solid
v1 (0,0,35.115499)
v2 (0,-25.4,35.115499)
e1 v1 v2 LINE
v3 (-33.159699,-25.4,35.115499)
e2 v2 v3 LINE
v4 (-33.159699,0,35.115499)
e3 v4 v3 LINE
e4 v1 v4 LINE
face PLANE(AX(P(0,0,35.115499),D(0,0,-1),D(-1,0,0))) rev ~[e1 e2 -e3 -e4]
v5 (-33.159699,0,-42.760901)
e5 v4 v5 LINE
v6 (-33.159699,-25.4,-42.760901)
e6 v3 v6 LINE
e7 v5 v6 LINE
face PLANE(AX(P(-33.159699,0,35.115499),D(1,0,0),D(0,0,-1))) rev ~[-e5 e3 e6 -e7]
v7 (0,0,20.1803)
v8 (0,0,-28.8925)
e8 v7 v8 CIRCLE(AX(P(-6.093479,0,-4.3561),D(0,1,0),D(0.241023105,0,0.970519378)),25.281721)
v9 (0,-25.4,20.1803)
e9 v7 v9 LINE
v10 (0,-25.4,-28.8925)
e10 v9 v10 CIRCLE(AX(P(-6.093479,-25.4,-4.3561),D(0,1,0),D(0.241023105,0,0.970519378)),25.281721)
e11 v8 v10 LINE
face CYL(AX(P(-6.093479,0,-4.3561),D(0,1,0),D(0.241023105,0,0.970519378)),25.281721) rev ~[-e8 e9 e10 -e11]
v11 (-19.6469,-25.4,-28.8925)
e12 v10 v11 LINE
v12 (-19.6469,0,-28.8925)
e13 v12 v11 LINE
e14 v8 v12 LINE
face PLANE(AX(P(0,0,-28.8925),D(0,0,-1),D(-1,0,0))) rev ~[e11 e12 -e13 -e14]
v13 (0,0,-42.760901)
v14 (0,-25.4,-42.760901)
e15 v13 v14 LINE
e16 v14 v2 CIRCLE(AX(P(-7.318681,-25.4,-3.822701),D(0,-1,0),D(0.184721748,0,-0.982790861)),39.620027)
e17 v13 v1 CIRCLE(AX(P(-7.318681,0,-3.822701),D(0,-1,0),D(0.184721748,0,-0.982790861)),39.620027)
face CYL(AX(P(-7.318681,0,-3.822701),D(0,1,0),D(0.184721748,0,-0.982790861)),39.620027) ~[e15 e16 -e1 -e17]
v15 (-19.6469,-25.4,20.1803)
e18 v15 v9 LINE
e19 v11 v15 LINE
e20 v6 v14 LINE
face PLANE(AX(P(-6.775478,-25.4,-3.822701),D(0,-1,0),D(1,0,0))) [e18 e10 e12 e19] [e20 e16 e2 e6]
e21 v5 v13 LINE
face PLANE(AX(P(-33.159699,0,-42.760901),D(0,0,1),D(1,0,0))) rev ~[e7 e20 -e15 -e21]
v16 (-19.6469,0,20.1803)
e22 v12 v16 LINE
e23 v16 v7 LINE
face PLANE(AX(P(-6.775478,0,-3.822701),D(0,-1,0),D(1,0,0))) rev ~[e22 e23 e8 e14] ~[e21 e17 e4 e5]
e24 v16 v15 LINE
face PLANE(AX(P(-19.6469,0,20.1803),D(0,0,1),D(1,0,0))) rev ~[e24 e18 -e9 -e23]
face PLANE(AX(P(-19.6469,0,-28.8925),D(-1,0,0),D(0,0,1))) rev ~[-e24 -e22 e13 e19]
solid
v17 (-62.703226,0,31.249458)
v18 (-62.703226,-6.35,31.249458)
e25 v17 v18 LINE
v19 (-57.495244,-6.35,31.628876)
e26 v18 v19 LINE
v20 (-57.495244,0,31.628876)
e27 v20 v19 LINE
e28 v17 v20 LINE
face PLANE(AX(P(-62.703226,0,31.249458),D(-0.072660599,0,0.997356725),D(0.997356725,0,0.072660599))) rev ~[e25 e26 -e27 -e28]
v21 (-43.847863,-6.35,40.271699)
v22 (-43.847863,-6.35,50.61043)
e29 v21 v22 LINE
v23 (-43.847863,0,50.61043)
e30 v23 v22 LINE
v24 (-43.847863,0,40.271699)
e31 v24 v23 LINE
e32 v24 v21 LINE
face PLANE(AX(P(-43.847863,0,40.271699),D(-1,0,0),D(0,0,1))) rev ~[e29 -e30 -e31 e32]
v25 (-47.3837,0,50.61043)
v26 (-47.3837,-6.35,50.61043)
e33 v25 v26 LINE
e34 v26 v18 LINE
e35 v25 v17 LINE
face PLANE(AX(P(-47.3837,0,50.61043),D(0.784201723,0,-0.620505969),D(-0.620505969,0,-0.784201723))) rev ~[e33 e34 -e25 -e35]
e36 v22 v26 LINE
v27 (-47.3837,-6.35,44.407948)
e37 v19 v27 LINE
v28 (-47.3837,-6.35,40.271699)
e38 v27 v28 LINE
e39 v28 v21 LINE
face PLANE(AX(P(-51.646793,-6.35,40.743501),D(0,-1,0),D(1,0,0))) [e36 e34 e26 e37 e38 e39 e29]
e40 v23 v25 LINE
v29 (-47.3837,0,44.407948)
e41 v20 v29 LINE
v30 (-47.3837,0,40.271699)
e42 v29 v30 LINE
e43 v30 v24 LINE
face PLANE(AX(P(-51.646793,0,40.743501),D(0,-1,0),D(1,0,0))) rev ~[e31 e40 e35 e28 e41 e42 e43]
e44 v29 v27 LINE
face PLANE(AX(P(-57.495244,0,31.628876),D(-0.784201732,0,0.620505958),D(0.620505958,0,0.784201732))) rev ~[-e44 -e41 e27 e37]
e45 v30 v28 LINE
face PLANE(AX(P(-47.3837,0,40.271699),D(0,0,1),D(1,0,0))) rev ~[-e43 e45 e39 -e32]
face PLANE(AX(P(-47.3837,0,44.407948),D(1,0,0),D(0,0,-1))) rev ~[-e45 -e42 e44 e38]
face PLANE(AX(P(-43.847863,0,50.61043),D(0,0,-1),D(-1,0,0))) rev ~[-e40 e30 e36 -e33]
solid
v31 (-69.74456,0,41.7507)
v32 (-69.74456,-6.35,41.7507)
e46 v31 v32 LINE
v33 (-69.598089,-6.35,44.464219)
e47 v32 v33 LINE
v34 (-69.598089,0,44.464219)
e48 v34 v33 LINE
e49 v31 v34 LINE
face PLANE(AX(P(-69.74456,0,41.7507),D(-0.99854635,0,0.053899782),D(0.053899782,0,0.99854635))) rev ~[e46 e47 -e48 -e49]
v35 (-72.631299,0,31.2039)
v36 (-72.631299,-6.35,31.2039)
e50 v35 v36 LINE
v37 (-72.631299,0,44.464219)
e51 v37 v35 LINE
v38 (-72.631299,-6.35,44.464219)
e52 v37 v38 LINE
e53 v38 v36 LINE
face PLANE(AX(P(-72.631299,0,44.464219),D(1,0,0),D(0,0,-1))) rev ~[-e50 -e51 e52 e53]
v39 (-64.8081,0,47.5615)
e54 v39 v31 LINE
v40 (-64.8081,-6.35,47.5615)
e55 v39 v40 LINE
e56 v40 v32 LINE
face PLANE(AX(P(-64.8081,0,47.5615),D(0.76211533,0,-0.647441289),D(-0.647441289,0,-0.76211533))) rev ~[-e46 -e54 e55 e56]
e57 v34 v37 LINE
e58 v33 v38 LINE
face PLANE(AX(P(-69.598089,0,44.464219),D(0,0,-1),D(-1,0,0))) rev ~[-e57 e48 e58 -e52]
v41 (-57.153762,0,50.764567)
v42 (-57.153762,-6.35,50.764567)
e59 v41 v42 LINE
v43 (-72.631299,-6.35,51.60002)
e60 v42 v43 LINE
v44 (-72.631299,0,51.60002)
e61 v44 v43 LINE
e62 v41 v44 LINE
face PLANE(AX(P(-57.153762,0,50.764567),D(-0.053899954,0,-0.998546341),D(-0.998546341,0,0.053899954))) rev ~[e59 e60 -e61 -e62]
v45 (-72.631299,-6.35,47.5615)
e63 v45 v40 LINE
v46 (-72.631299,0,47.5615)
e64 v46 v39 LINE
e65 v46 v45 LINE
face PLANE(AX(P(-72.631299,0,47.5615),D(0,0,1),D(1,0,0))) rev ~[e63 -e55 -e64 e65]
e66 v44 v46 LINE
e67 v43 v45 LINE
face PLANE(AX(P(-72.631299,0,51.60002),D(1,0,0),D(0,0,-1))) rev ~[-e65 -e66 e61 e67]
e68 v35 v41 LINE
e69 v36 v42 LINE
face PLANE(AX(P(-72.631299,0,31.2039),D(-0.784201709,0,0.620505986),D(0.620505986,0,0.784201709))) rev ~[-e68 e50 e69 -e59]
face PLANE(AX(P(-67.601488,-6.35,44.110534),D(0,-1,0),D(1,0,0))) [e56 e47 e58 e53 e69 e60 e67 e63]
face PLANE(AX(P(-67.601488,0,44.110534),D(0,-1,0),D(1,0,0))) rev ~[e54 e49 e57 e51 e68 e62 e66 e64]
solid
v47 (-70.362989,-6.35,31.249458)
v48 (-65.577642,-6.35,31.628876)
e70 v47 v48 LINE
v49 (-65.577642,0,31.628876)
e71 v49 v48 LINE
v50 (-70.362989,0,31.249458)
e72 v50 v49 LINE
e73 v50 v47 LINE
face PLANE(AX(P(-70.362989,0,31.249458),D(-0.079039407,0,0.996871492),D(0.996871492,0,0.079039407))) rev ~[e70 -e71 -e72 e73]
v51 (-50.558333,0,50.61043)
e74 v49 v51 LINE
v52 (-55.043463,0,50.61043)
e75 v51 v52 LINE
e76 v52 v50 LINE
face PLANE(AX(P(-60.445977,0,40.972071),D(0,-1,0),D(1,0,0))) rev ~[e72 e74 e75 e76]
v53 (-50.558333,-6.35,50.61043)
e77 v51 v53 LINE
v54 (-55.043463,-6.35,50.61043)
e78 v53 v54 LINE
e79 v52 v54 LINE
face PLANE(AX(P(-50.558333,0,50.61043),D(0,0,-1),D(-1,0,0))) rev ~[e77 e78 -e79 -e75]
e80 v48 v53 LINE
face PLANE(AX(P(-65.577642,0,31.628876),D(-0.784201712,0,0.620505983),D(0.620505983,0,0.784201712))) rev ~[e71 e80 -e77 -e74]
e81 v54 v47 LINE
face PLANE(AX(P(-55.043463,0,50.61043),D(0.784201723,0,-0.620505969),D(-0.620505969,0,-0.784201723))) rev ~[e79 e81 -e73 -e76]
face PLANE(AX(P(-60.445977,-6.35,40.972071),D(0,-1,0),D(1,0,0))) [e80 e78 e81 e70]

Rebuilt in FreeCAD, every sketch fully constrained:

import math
import FreeCAD as App
import Part
import Sketcher
Q = App.Units.Quantity


def add_polygon(sketch, points):
    """Adds a closed chain of lines whose ends are joined by coincident constraints."""
    first, n = sketch.GeometryCount, len(points)
    for a, b in zip(points, points[1:] + points[:1]):
        sketch.addGeometry(Part.LineSegment(App.Vector(*a, 0), App.Vector(*b, 0)), False)
    for i in range(n):
        sketch.addConstraint(Sketcher.Constraint("Coincident", first + i, 2, first + (i + 1) % n, 1))

doc = App.newDocument("Part")
params = doc.addObject("Spreadsheet::Sheet", "Params")
for row, (alias, value) in enumerate([
    ("sketch1_height", "3.066 in"),
    ("sketch1_height2", "1.932 in"),
    ("pad1_length", "1 in"),
    ("sketch2_width", "0.308 in"),
    ("pad2_length", "0.25 in"),
], start=1):
    params.set(f"A{row}", alias)
    params.set(f"B{row}", "=" + value)
    params.setAlias(f"B{row}", alias)

body = doc.addObject("PartDesign::Body", "Body")

sketch1 = body.newObject("Sketcher::SketchObject", "Sketch")
sketch1.AttachmentSupport = (doc.getObject("XZ_Plane"), [""])
sketch1.MapMode = "FlatFace"
sketch1.addGeometry(Part.LineSegment(App.Vector(0, 35, 0), App.Vector(-33, 35, 0)), False)
sketch1.addGeometry(Part.LineSegment(App.Vector(-33, 35, 0), App.Vector(-33, -43, 0)), False)
sketch1.addGeometry(Part.LineSegment(App.Vector(-33, -43, 0), App.Vector(0, -43, 0)), False)
sketch1.addGeometry(Part.ArcOfCircle(Part.Circle(App.Vector(-7, -4, 0), App.Vector(0, 0, 1), 40), math.radians(-79), math.radians(79)), False)
sketch1.addGeometry(Part.LineSegment(App.Vector(0, -29, 0), App.Vector(-20, -29, 0)), False)
sketch1.addGeometry(Part.LineSegment(App.Vector(-20, -29, 0), App.Vector(-20, 20, 0)), False)
sketch1.addGeometry(Part.LineSegment(App.Vector(-20, 20, 0), App.Vector(0, 20, 0)), False)
sketch1.addGeometry(Part.ArcOfCircle(Part.Circle(App.Vector(-6, -4, 0), App.Vector(0, 0, 1), 25), math.radians(-76), math.radians(76)), False)
sketch1.addConstraint(Sketcher.Constraint("Coincident", 0, 2, 1, 1))
sketch1.addConstraint(Sketcher.Constraint("Coincident", 1, 2, 2, 1))
sketch1.addConstraint(Sketcher.Constraint("Coincident", 2, 2, 3, 1))
sketch1.addConstraint(Sketcher.Constraint("Coincident", 3, 2, 0, 1))
sketch1.addConstraint(Sketcher.Constraint("Coincident", 4, 2, 5, 1))
sketch1.addConstraint(Sketcher.Constraint("Coincident", 5, 2, 6, 1))
sketch1.addConstraint(Sketcher.Constraint("Coincident", 6, 2, 7, 2))
sketch1.addConstraint(Sketcher.Constraint("Coincident", 7, 1, 4, 1))
sketch1.addConstraint(Sketcher.Constraint("Horizontal", 0))
sketch1.addConstraint(Sketcher.Constraint("Vertical", 1))
sketch1.addConstraint(Sketcher.Constraint("Horizontal", 2))
sketch1.addConstraint(Sketcher.Constraint("Horizontal", 4))
sketch1.addConstraint(Sketcher.Constraint("Vertical", 5))
sketch1.addConstraint(Sketcher.Constraint("Horizontal", 6))
sketch1.addConstraint(Sketcher.Constraint("PointOnObject", 2, 2, -2))
sketch1.addConstraint(Sketcher.Constraint("PointOnObject", 3, 2, -2))
sketch1.addConstraint(Sketcher.Constraint("PointOnObject", 6, 2, -2))
sketch1.addConstraint(Sketcher.Constraint("PointOnObject", 7, 1, -2))
sketch1.addConstraint(Sketcher.Constraint("DistanceY", 1, 2, 1, 1, Q("3.066 in")))
sketch1.addConstraint(Sketcher.Constraint("DistanceY", 5, 1, 5, 2, Q("1.932 in")))
sketch1.addConstraint(Sketcher.Constraint("DistanceY", 4, 2, 0, 2, Q("2.52 in")))
sketch1.addConstraint(Sketcher.Constraint("DistanceX", 0, 2, 0, 1, Q("1.3055 in")))
sketch1.addConstraint(Sketcher.Constraint("DistanceX", 4, 2, 4, 1, Q("0.7735 in")))
sketch1.addConstraint(Sketcher.Constraint("Radius", 7, 25.281721))
sketch1.addConstraint(Sketcher.Constraint("DistanceY", 3, 3, -1, 1, Q("0.1505 in")))
sketch1.addConstraint(Sketcher.Constraint("Radius", 3, 39.620027))
sketch1.setExpression("Constraints[18]", "Params.sketch1_height")
sketch1.setExpression("Constraints[19]", "Params.sketch1_height2")
pad1 = body.newObject("PartDesign::Pad", "Pad")
pad1.Profile = sketch1
pad1.setExpression("Length", "Params.pad1_length")
body2 = doc.addObject("PartDesign::Body", "Body001")
body2.AllowCompound = True

sketch2 = body2.newObject("Sketcher::SketchObject", "Sketch001")
sketch2.AttachmentSupport = (doc.getObject("XZ_Plane001"), [""])
sketch2.MapMode = "FlatFace"
add_polygon(sketch2, [(-57.2, 50.8), (-72.6, 51.6), (-72.6, 47.6), (-64.8, 47.6), (-69.7, 41.8), (-69.6, 44.5), (-72.6, 44.5), (-72.6, 31.2)])
add_polygon(sketch2, [(-55, 50.6), (-70.4, 31.2), (-65.6, 31.6), (-50.6, 50.6)])
add_polygon(sketch2, [(-47.4, 50.6), (-62.7, 31.2), (-57.5, 31.6), (-47.4, 44.4), (-47.4, 40.3), (-43.8, 40.3), (-43.8, 50.6)])
sketch2.addConstraint(Sketcher.Constraint("Vertical", 1))
sketch2.addConstraint(Sketcher.Constraint("Horizontal", 2))
sketch2.addConstraint(Sketcher.Constraint("Horizontal", 5))
sketch2.addConstraint(Sketcher.Constraint("Vertical", 6))
sketch2.addConstraint(Sketcher.Constraint("Horizontal", 11))
sketch2.addConstraint(Sketcher.Constraint("Vertical", 15))
sketch2.addConstraint(Sketcher.Constraint("Horizontal", 16))
sketch2.addConstraint(Sketcher.Constraint("Vertical", 17))
sketch2.addConstraint(Sketcher.Constraint("Horizontal", 18))
sketch2.addConstraint(Sketcher.Constraint("Perpendicular", 0, 4))
sketch2.addConstraint(Sketcher.Constraint("Parallel", 7, 8))
sketch2.addConstraint(Sketcher.Constraint("Parallel", 8, 10))
sketch2.addConstraint(Sketcher.Constraint("Parallel", 10, 12))
sketch2.addConstraint(Sketcher.Constraint("Parallel", 12, 14))
sketch2.addConstraint(Sketcher.Constraint("Horizontal", 8, 2, 12, 2))
sketch2.addConstraint(Sketcher.Constraint("Horizontal", 9, 2, 13, 2))
sketch2.addConstraint(Sketcher.Constraint("Horizontal", 11, 2, 17, 2))
sketch2.addConstraint(Sketcher.Constraint("Vertical", 1, 2, 5, 2))
sketch2.addConstraint(Sketcher.Constraint("Vertical", 15, 2, 18, 2))
sketch2.addConstraint(Sketcher.Constraint("DistanceX", 2, 1, 2, 2, Q("0.308 in")))
sketch2.addConstraint(Sketcher.Constraint("DistanceY", 6, 2, 1, 2, Q("0.644 in")))
sketch2.addConstraint(Sketcher.Constraint("DistanceX", 2, 2, 14, 2, Q("0.686 in")))
sketch2.addConstraint(Sketcher.Constraint("DistanceX", 0, 2, -1, 1, Q("2.8595 in")))
sketch2.addConstraint(Sketcher.Constraint("DistanceY", -1, 1, 1, 2, Q("1.8725 in")))
sketch2.addConstraint(Sketcher.Constraint("DistanceY", -1, 1, 15, 2, Q("1.5855 in")))
sketch2.addConstraint(Sketcher.Constraint("DistanceX", 5, 2, 5, 1, 3.03321))
sketch2.addConstraint(Sketcher.Constraint("DistanceX", 11, 2, 11, 1, 4.48513))
sketch2.addConstraint(Sketcher.Constraint("DistanceY", 1, 2, 1, 1, 4.03852))
sketch2.addConstraint(Sketcher.Constraint("DistanceY", 6, 2, 6, 1, 13.260319))
sketch2.addConstraint(Sketcher.Constraint("DistanceY", 15, 2, 15, 1, 4.136249))
sketch2.addConstraint(Sketcher.Constraint("DistanceY", 17, 1, 17, 2, 10.338731))
sketch2.addConstraint(Sketcher.Constraint("DistanceY", -1, 1, 3, 2, 41.7507))
sketch2.addConstraint(Sketcher.Constraint("DistanceX", 3, 2, 7, 2, 12.590798))
sketch2.addConstraint(Sketcher.Constraint("DistanceX", 8, 2, 4, 2, 0.7649))
sketch2.addConstraint(Sketcher.Constraint("DistanceX", 7, 2, 11, 2, 2.110299))
sketch2.addConstraint(Sketcher.Constraint("DistanceX", 11, 2, 16, 2, 11.1956))
sketch2.addConstraint(Sketcher.Constraint("Distance", 0, 15.500069))
sketch2.addConstraint(Sketcher.Constraint("Distance", 10, 24.204938))
sketch2.setExpression("Constraints[38]", "Params.sketch2_width")
pad2 = body2.newObject("PartDesign::Pad", "Pad001")
pad2.Profile = sketch2
pad2.setExpression("Length", "Params.pad2_length")

doc.recompute()
